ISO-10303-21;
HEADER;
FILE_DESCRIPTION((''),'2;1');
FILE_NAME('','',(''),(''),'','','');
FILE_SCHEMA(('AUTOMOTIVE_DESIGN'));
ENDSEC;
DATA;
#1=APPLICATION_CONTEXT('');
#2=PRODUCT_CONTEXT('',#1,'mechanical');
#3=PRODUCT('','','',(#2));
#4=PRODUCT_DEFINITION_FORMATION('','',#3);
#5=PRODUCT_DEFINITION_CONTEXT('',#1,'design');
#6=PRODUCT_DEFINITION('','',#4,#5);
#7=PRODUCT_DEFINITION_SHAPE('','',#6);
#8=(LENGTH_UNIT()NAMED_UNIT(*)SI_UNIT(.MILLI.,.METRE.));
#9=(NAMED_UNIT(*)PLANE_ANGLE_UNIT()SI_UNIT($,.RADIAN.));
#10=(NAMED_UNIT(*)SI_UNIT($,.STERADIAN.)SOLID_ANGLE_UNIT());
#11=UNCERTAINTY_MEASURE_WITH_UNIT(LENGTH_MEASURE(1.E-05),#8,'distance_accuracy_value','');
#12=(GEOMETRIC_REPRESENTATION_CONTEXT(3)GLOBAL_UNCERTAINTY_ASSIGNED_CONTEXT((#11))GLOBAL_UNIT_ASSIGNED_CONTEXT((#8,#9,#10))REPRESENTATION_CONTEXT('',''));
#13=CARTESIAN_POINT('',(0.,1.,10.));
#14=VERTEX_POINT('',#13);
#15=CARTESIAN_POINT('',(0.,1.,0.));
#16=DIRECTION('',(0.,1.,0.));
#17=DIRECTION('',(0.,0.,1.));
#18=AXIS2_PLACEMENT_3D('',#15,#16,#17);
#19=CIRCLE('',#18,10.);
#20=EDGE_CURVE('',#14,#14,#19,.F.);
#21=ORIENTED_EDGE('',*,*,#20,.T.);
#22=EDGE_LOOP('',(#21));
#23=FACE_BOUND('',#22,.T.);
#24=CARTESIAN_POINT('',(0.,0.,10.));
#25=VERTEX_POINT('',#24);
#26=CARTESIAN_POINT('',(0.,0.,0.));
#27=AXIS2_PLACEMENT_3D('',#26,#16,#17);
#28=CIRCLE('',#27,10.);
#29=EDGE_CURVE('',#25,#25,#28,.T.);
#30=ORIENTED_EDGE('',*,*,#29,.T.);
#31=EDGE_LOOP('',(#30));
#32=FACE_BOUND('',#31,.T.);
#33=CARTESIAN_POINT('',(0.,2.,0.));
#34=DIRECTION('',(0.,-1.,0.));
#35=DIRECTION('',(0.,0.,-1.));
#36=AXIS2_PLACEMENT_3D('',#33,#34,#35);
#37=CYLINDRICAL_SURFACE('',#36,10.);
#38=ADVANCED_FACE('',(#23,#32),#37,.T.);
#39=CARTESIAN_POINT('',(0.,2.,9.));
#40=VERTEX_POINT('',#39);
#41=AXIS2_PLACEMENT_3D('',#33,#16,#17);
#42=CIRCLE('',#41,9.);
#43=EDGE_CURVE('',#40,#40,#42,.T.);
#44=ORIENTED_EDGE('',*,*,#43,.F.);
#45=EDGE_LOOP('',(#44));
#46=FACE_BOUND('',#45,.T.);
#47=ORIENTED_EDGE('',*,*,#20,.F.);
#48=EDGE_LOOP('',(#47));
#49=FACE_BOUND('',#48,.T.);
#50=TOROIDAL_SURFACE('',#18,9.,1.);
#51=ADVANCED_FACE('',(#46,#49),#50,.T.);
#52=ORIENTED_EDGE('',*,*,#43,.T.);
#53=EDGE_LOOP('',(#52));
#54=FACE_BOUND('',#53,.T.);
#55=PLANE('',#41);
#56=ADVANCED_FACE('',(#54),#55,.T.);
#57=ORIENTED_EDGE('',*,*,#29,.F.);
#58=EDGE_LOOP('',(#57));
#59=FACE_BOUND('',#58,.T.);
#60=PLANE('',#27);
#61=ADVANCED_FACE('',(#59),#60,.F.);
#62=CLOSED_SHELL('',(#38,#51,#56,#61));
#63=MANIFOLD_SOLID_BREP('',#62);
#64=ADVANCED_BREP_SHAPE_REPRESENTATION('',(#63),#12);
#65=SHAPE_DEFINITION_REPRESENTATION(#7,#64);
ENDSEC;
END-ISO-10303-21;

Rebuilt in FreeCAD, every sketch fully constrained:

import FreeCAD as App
import Part
import Sketcher


def edges_at(feature, points):
    """Names of the edges that pass closest to the given points."""
    edges = feature.Shape.Edges
    near = lambda p: min(range(len(edges)), key=lambda i: edges[i].distToShape(Part.Vertex(*p))[0])
    return sorted({f"Edge{near(p) + 1}" for p in points})

doc = App.newDocument("Part")
params = doc.addObject("Spreadsheet::Sheet", "Params")
for row, (alias, value) in enumerate([
    ("sketch1_diameter", "20 mm"),
    ("pad1_length", "2 mm"),
    ("fillet_radius", "1 mm"),
], start=1):
    params.set(f"A{row}", alias)
    params.set(f"B{row}", "=" + value)
    params.setAlias(f"B{row}", alias)

body = doc.addObject("PartDesign::Body", "Body")

sketch1 = body.newObject("Sketcher::SketchObject", "Sketch")
sketch1.AttachmentSupport = (doc.getObject("XZ_Plane"), [""])
sketch1.MapMode = "FlatFace"
sketch1.addGeometry(Part.Circle(App.Vector(0, 0, 0), App.Vector(0, 0, 1), 10), False)
sketch1.addConstraint(Sketcher.Constraint("Coincident", 0, 3, -1, 1))
sketch1.addConstraint(Sketcher.Constraint("Diameter", 0, 20.0))
sketch1.setExpression("Constraints[1]", "Params.sketch1_diameter")
pad1 = body.newObject("PartDesign::Pad", "Pad")
pad1.Profile = sketch1
pad1.setExpression("Length", "Params.pad1_length")
pad1.Reversed = True
doc.recompute()

fillet = body.newObject("PartDesign::Fillet", "Fillet")
fillet.Base = (pad1, edges_at(pad1, [(-10, 2, 0)]))
fillet.setExpression("Radius", "Params.fillet_radius")

doc.recompute()
